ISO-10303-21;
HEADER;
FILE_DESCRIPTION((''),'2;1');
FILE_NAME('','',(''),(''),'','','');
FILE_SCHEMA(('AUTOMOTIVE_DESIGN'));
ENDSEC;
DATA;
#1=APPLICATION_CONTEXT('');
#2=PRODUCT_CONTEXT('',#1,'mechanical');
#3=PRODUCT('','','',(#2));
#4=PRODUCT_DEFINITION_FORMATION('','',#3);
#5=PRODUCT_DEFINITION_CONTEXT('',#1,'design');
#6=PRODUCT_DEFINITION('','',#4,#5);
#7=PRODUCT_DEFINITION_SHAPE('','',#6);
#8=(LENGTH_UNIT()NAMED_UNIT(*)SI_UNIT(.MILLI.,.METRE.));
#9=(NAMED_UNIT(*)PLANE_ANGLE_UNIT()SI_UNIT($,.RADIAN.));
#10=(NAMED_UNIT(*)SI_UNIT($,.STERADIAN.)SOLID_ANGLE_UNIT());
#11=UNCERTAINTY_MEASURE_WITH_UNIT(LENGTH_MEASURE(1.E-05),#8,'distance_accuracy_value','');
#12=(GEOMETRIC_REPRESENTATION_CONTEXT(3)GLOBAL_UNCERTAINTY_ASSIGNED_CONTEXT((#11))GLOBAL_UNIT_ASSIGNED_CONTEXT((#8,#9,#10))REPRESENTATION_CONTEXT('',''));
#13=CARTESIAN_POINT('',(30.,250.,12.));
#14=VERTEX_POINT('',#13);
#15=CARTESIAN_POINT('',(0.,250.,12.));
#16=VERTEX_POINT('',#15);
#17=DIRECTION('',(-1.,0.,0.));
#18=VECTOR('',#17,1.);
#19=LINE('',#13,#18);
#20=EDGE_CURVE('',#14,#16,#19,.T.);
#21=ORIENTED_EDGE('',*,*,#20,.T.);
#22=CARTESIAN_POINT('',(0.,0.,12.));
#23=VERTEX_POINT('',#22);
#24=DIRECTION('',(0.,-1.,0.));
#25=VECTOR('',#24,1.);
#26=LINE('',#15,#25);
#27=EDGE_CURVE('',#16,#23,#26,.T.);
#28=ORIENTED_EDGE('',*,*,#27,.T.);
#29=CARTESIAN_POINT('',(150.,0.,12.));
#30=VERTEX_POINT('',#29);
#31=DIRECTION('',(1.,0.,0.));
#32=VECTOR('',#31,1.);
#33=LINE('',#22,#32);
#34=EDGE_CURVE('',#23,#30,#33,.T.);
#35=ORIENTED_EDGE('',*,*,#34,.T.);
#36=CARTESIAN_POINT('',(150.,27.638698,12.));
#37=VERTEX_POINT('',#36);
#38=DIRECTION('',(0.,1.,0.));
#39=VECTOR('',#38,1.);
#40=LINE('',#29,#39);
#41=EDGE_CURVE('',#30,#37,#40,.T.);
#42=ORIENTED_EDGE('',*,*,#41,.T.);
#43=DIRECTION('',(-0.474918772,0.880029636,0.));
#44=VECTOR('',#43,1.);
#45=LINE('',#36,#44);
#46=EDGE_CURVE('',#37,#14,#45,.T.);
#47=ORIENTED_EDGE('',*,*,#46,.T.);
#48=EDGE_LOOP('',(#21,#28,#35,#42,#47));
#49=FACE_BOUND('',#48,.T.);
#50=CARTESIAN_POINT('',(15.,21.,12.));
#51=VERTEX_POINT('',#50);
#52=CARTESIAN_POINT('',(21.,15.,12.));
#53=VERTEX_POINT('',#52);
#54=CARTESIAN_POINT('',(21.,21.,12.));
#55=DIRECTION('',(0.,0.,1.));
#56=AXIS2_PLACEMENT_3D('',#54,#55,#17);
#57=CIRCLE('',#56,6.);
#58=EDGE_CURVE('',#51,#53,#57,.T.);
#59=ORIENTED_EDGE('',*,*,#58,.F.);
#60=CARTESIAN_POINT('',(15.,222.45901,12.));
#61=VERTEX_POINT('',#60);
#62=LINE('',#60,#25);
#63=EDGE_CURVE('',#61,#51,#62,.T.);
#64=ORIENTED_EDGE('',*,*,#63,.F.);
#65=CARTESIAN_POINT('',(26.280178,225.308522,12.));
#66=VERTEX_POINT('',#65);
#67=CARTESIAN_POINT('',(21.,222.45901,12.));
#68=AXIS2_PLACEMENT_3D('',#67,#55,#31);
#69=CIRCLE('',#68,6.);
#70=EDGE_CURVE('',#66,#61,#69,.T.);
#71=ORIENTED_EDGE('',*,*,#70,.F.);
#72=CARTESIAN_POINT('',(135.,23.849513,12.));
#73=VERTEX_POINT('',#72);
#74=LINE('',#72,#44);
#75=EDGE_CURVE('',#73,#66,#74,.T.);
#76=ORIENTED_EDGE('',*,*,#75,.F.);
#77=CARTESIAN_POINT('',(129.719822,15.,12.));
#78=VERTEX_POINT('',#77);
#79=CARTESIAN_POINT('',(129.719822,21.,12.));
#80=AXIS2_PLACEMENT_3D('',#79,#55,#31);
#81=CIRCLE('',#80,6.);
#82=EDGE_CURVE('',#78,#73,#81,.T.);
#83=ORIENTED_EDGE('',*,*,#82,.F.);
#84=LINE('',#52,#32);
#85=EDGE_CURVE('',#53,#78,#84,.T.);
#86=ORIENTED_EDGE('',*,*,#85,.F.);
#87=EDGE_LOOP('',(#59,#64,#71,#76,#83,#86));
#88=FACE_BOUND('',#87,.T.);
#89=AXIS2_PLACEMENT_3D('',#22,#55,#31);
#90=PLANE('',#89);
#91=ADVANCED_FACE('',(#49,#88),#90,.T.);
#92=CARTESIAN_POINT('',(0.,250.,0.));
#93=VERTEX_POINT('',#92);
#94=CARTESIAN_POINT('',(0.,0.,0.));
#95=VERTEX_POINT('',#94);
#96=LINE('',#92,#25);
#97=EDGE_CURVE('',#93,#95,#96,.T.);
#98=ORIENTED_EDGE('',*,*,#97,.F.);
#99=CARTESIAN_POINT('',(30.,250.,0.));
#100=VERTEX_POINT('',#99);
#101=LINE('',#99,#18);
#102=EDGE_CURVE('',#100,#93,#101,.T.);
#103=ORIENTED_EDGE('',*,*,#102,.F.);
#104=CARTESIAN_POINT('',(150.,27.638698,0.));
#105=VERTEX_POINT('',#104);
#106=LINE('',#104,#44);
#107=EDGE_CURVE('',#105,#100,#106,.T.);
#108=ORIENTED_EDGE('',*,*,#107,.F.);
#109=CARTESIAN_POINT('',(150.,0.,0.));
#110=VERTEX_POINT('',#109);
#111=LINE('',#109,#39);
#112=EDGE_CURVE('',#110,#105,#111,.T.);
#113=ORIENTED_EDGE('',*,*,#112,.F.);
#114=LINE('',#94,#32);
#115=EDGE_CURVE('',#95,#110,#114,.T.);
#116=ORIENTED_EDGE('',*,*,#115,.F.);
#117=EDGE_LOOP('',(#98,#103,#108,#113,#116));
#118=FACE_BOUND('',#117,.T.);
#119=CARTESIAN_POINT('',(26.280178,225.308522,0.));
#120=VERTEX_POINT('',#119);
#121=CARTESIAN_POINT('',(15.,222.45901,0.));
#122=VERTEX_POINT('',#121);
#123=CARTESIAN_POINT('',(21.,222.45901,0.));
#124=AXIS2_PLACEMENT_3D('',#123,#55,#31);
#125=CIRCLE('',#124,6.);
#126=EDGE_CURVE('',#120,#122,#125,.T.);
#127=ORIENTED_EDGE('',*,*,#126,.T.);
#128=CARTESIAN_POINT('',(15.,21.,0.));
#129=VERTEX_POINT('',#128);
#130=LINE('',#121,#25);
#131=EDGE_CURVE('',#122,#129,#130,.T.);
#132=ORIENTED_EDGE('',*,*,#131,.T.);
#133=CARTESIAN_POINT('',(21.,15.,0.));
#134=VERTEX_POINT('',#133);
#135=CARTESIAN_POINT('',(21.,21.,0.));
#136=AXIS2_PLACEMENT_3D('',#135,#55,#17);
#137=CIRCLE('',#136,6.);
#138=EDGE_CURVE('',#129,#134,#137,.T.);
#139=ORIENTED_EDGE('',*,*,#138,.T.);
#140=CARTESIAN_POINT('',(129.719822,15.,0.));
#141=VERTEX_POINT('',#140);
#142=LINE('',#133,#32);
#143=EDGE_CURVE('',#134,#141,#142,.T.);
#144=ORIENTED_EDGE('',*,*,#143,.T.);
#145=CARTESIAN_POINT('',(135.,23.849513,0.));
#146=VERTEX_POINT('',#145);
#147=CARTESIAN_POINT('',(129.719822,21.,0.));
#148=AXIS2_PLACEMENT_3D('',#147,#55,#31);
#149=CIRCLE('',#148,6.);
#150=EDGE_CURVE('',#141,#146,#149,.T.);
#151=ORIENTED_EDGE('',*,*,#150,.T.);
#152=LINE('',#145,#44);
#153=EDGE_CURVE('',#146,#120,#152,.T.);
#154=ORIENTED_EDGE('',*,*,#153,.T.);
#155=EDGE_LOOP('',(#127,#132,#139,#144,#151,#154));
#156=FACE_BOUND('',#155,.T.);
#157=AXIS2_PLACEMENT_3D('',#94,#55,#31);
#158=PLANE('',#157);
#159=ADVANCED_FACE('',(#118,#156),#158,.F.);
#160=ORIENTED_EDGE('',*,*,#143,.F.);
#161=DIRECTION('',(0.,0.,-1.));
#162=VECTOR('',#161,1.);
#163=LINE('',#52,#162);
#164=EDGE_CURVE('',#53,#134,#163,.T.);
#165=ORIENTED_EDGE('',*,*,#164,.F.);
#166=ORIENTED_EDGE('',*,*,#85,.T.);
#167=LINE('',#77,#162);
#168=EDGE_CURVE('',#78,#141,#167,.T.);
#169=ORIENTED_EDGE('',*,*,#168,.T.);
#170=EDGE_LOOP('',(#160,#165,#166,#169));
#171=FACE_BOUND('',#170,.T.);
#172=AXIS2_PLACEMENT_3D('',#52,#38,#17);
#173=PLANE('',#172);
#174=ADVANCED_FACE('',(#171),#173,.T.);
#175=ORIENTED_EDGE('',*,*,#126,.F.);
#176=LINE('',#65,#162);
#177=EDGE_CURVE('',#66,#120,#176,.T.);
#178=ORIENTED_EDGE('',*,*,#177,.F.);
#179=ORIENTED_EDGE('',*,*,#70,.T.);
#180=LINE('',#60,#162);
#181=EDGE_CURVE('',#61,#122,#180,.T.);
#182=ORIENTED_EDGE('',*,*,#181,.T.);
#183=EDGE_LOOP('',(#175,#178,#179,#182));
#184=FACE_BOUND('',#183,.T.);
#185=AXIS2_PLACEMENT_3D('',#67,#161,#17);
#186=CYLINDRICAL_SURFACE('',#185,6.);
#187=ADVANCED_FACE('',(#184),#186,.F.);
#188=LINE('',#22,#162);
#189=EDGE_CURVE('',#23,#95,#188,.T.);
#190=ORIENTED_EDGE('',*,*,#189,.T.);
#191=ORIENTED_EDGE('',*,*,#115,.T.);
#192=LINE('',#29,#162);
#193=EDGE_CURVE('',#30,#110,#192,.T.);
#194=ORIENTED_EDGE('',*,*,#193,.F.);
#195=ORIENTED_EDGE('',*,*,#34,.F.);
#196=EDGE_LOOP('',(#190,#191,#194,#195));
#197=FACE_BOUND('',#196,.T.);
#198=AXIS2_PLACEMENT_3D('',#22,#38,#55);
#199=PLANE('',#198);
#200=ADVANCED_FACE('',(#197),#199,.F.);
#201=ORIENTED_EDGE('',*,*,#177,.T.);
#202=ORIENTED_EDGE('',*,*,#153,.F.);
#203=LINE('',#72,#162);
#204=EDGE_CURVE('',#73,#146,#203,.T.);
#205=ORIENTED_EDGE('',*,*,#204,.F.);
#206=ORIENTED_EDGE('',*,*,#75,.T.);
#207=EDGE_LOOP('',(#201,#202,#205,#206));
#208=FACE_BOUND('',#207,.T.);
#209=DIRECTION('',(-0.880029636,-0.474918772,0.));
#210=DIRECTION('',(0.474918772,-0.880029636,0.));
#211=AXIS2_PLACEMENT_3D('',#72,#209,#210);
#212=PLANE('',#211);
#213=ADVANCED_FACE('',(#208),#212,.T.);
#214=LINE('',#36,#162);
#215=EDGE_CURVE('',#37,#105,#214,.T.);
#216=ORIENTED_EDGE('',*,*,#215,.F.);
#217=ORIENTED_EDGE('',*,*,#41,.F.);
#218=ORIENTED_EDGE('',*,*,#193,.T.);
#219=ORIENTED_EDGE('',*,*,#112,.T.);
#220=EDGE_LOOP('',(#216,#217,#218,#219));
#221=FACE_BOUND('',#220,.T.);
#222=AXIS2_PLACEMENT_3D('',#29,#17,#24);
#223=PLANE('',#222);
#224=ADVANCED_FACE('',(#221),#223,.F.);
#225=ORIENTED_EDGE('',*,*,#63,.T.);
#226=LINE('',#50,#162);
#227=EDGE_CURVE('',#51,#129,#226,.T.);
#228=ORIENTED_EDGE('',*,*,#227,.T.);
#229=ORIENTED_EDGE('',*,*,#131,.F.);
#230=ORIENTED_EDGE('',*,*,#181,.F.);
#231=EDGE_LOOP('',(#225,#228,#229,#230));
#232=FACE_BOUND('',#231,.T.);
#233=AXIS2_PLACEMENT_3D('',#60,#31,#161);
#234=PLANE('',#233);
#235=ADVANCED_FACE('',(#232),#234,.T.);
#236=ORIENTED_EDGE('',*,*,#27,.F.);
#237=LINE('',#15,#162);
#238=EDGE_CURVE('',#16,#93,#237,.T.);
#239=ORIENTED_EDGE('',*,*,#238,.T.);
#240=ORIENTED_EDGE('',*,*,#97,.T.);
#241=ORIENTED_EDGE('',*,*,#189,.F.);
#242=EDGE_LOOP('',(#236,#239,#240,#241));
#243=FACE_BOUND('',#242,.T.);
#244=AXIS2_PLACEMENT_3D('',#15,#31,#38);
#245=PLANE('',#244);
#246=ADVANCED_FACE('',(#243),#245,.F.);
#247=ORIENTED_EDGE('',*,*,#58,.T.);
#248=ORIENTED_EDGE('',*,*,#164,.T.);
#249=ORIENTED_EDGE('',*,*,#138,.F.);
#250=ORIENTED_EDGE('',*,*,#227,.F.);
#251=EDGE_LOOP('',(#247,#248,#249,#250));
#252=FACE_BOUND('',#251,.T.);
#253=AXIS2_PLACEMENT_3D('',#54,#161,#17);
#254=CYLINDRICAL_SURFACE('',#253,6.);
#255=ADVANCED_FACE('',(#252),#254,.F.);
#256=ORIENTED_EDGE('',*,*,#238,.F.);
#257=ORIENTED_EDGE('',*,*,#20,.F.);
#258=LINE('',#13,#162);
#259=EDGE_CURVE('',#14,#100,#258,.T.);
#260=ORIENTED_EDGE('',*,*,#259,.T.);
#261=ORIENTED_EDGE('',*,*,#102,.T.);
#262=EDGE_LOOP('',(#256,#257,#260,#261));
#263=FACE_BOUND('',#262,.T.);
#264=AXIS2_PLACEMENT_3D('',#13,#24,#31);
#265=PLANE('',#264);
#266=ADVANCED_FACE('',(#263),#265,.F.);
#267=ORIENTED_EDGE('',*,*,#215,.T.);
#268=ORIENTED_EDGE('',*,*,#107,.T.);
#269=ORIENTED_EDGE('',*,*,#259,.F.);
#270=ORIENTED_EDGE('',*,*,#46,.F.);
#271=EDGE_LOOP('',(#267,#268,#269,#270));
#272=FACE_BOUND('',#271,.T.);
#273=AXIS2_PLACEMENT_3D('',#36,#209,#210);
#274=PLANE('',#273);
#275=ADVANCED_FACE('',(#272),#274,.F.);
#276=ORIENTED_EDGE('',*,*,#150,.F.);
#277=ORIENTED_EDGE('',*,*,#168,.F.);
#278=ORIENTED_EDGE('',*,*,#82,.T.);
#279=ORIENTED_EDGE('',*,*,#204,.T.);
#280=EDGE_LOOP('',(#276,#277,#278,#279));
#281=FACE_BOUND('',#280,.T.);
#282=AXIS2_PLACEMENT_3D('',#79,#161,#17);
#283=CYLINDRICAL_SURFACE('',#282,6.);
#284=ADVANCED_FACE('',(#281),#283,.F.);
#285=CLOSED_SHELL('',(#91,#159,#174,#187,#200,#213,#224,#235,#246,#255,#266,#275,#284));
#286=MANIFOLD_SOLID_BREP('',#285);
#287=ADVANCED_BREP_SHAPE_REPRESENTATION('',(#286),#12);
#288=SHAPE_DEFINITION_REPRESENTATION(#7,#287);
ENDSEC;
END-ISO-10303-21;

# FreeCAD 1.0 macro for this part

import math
import FreeCAD as App
import Part
import Sketcher
from FreeCAD import Vector
Q = App.Units.Quantity

doc = App.newDocument("Part")
params = doc.addObject("Spreadsheet::Sheet", "Params")
for row, (alias, value) in enumerate([
    ("sketch1_radius", "6 mm"),
    ("sketch1_width", "150 mm"),
    ("sketch1_width2", "30 mm"),
    ("sketch1_height", "250 mm"),
    ("pad1_length", "12 mm"),
], start=1):
    params.set(f"A{row}", alias)
    params.set(f"B{row}", "=" + value)
    params.setAlias(f"B{row}", alias)

body = doc.addObject("PartDesign::Body", "Body")

sketch1 = body.newObject("Sketcher::SketchObject", "Sketch")
sketch1.AttachmentSupport = (doc.getObject("XY_Plane"), [""])
sketch1.MapMode = "FlatFace"
sketch1.addGeometry([
    Part.LineSegment(Vector(0, 250, 0), Vector(0, 0, 0)),
    Part.LineSegment(Vector(0, 0, 0), Vector(150, 0, 0)),
    Part.LineSegment(Vector(150, 0, 0), Vector(150, 27.638698, 0)),
    Part.LineSegment(Vector(150, 27.638698, 0), Vector(30, 250, 0)),
    Part.LineSegment(Vector(30, 250, 0), Vector(0, 250, 0)),
    Part.LineSegment(Vector(129.719822, 15, 0), Vector(21, 15, 0)),
    Part.ArcOfCircle(Part.Circle(Vector(21, 21, 0), Vector(0, 0, 1), 6), math.radians(180), math.radians(270)),
    Part.LineSegment(Vector(15, 21, 0), Vector(15, 222.45901, 0)),
    Part.ArcOfCircle(Part.Circle(Vector(21, 222.45901, 0), Vector(0, 0, 1), 6), math.radians(28.354061), math.radians(180)),
    Part.LineSegment(Vector(26.280178, 225.308522, 0), Vector(135, 23.849513, 0)),
    Part.ArcOfCircle(Part.Circle(Vector(129.719822, 21, 0), Vector(0, 0, 1), 6), math.radians(-90), math.radians(28.354061)),
], False)
sketch1.addConstraint([
    Sketcher.Constraint("Coincident", 0, 2, 1, 1),
    Sketcher.Constraint("Coincident", 1, 2, 2, 1),
    Sketcher.Constraint("Coincident", 2, 2, 3, 1),
    Sketcher.Constraint("Coincident", 3, 2, 4, 1),
    Sketcher.Constraint("Coincident", 4, 2, 0, 1),
    Sketcher.Constraint("Tangent", 5, 2, 6, 2),
    Sketcher.Constraint("Tangent", 6, 1, 7, 1),
    Sketcher.Constraint("Tangent", 7, 2, 8, 2),
    Sketcher.Constraint("Tangent", 8, 1, 9, 1),
    Sketcher.Constraint("Tangent", 9, 2, 10, 2),
    Sketcher.Constraint("Tangent", 10, 1, 5, 1),
    Sketcher.Constraint("Vertical", 0),
    Sketcher.Constraint("Horizontal", 1),
    Sketcher.Constraint("Vertical", 2),
    Sketcher.Constraint("Horizontal", 4),
    Sketcher.Constraint("Horizontal", 5),
    Sketcher.Constraint("Vertical", 7),
    Sketcher.Constraint("Coincident", 0, 2, -1, 1),
    Sketcher.Constraint("Equal", 6, 8),
    Sketcher.Constraint("Equal", 8, 10),
    Sketcher.Constraint("Parallel", 3, 9),
    Sketcher.Constraint("Radius", 6, Q("6 mm")),
    Sketcher.Constraint("DistanceX", 1, 1, 1, 2, Q("150 mm")),
    Sketcher.Constraint("DistanceX", 4, 2, 4, 1, Q("30 mm")),
    Sketcher.Constraint("DistanceY", 0, 2, 0, 1, Q("250 mm")),
    Sketcher.Constraint("DistanceX", -1, 1, 6, 3, Q("21 mm")),
    Sketcher.Constraint("DistanceY", -1, 1, 6, 3, Q("21 mm")),
    Sketcher.Constraint("DistanceX", -1, 1, 9, 2, Q("135 mm")),
    Sketcher.Constraint("DistanceY", 2, 1, 2, 2, Q("27.638698 mm")),
])
sketch1.setExpression("Constraints[21]", "Params.sketch1_radius")
sketch1.setExpression("Constraints[22]", "Params.sketch1_width")
sketch1.setExpression("Constraints[23]", "Params.sketch1_width2")
sketch1.setExpression("Constraints[24]", "Params.sketch1_height")
pad1 = body.newObject("PartDesign::Pad", "Pad")
pad1.Profile = sketch1
pad1.setExpression("Length", "Params.pad1_length")

doc.recompute()
